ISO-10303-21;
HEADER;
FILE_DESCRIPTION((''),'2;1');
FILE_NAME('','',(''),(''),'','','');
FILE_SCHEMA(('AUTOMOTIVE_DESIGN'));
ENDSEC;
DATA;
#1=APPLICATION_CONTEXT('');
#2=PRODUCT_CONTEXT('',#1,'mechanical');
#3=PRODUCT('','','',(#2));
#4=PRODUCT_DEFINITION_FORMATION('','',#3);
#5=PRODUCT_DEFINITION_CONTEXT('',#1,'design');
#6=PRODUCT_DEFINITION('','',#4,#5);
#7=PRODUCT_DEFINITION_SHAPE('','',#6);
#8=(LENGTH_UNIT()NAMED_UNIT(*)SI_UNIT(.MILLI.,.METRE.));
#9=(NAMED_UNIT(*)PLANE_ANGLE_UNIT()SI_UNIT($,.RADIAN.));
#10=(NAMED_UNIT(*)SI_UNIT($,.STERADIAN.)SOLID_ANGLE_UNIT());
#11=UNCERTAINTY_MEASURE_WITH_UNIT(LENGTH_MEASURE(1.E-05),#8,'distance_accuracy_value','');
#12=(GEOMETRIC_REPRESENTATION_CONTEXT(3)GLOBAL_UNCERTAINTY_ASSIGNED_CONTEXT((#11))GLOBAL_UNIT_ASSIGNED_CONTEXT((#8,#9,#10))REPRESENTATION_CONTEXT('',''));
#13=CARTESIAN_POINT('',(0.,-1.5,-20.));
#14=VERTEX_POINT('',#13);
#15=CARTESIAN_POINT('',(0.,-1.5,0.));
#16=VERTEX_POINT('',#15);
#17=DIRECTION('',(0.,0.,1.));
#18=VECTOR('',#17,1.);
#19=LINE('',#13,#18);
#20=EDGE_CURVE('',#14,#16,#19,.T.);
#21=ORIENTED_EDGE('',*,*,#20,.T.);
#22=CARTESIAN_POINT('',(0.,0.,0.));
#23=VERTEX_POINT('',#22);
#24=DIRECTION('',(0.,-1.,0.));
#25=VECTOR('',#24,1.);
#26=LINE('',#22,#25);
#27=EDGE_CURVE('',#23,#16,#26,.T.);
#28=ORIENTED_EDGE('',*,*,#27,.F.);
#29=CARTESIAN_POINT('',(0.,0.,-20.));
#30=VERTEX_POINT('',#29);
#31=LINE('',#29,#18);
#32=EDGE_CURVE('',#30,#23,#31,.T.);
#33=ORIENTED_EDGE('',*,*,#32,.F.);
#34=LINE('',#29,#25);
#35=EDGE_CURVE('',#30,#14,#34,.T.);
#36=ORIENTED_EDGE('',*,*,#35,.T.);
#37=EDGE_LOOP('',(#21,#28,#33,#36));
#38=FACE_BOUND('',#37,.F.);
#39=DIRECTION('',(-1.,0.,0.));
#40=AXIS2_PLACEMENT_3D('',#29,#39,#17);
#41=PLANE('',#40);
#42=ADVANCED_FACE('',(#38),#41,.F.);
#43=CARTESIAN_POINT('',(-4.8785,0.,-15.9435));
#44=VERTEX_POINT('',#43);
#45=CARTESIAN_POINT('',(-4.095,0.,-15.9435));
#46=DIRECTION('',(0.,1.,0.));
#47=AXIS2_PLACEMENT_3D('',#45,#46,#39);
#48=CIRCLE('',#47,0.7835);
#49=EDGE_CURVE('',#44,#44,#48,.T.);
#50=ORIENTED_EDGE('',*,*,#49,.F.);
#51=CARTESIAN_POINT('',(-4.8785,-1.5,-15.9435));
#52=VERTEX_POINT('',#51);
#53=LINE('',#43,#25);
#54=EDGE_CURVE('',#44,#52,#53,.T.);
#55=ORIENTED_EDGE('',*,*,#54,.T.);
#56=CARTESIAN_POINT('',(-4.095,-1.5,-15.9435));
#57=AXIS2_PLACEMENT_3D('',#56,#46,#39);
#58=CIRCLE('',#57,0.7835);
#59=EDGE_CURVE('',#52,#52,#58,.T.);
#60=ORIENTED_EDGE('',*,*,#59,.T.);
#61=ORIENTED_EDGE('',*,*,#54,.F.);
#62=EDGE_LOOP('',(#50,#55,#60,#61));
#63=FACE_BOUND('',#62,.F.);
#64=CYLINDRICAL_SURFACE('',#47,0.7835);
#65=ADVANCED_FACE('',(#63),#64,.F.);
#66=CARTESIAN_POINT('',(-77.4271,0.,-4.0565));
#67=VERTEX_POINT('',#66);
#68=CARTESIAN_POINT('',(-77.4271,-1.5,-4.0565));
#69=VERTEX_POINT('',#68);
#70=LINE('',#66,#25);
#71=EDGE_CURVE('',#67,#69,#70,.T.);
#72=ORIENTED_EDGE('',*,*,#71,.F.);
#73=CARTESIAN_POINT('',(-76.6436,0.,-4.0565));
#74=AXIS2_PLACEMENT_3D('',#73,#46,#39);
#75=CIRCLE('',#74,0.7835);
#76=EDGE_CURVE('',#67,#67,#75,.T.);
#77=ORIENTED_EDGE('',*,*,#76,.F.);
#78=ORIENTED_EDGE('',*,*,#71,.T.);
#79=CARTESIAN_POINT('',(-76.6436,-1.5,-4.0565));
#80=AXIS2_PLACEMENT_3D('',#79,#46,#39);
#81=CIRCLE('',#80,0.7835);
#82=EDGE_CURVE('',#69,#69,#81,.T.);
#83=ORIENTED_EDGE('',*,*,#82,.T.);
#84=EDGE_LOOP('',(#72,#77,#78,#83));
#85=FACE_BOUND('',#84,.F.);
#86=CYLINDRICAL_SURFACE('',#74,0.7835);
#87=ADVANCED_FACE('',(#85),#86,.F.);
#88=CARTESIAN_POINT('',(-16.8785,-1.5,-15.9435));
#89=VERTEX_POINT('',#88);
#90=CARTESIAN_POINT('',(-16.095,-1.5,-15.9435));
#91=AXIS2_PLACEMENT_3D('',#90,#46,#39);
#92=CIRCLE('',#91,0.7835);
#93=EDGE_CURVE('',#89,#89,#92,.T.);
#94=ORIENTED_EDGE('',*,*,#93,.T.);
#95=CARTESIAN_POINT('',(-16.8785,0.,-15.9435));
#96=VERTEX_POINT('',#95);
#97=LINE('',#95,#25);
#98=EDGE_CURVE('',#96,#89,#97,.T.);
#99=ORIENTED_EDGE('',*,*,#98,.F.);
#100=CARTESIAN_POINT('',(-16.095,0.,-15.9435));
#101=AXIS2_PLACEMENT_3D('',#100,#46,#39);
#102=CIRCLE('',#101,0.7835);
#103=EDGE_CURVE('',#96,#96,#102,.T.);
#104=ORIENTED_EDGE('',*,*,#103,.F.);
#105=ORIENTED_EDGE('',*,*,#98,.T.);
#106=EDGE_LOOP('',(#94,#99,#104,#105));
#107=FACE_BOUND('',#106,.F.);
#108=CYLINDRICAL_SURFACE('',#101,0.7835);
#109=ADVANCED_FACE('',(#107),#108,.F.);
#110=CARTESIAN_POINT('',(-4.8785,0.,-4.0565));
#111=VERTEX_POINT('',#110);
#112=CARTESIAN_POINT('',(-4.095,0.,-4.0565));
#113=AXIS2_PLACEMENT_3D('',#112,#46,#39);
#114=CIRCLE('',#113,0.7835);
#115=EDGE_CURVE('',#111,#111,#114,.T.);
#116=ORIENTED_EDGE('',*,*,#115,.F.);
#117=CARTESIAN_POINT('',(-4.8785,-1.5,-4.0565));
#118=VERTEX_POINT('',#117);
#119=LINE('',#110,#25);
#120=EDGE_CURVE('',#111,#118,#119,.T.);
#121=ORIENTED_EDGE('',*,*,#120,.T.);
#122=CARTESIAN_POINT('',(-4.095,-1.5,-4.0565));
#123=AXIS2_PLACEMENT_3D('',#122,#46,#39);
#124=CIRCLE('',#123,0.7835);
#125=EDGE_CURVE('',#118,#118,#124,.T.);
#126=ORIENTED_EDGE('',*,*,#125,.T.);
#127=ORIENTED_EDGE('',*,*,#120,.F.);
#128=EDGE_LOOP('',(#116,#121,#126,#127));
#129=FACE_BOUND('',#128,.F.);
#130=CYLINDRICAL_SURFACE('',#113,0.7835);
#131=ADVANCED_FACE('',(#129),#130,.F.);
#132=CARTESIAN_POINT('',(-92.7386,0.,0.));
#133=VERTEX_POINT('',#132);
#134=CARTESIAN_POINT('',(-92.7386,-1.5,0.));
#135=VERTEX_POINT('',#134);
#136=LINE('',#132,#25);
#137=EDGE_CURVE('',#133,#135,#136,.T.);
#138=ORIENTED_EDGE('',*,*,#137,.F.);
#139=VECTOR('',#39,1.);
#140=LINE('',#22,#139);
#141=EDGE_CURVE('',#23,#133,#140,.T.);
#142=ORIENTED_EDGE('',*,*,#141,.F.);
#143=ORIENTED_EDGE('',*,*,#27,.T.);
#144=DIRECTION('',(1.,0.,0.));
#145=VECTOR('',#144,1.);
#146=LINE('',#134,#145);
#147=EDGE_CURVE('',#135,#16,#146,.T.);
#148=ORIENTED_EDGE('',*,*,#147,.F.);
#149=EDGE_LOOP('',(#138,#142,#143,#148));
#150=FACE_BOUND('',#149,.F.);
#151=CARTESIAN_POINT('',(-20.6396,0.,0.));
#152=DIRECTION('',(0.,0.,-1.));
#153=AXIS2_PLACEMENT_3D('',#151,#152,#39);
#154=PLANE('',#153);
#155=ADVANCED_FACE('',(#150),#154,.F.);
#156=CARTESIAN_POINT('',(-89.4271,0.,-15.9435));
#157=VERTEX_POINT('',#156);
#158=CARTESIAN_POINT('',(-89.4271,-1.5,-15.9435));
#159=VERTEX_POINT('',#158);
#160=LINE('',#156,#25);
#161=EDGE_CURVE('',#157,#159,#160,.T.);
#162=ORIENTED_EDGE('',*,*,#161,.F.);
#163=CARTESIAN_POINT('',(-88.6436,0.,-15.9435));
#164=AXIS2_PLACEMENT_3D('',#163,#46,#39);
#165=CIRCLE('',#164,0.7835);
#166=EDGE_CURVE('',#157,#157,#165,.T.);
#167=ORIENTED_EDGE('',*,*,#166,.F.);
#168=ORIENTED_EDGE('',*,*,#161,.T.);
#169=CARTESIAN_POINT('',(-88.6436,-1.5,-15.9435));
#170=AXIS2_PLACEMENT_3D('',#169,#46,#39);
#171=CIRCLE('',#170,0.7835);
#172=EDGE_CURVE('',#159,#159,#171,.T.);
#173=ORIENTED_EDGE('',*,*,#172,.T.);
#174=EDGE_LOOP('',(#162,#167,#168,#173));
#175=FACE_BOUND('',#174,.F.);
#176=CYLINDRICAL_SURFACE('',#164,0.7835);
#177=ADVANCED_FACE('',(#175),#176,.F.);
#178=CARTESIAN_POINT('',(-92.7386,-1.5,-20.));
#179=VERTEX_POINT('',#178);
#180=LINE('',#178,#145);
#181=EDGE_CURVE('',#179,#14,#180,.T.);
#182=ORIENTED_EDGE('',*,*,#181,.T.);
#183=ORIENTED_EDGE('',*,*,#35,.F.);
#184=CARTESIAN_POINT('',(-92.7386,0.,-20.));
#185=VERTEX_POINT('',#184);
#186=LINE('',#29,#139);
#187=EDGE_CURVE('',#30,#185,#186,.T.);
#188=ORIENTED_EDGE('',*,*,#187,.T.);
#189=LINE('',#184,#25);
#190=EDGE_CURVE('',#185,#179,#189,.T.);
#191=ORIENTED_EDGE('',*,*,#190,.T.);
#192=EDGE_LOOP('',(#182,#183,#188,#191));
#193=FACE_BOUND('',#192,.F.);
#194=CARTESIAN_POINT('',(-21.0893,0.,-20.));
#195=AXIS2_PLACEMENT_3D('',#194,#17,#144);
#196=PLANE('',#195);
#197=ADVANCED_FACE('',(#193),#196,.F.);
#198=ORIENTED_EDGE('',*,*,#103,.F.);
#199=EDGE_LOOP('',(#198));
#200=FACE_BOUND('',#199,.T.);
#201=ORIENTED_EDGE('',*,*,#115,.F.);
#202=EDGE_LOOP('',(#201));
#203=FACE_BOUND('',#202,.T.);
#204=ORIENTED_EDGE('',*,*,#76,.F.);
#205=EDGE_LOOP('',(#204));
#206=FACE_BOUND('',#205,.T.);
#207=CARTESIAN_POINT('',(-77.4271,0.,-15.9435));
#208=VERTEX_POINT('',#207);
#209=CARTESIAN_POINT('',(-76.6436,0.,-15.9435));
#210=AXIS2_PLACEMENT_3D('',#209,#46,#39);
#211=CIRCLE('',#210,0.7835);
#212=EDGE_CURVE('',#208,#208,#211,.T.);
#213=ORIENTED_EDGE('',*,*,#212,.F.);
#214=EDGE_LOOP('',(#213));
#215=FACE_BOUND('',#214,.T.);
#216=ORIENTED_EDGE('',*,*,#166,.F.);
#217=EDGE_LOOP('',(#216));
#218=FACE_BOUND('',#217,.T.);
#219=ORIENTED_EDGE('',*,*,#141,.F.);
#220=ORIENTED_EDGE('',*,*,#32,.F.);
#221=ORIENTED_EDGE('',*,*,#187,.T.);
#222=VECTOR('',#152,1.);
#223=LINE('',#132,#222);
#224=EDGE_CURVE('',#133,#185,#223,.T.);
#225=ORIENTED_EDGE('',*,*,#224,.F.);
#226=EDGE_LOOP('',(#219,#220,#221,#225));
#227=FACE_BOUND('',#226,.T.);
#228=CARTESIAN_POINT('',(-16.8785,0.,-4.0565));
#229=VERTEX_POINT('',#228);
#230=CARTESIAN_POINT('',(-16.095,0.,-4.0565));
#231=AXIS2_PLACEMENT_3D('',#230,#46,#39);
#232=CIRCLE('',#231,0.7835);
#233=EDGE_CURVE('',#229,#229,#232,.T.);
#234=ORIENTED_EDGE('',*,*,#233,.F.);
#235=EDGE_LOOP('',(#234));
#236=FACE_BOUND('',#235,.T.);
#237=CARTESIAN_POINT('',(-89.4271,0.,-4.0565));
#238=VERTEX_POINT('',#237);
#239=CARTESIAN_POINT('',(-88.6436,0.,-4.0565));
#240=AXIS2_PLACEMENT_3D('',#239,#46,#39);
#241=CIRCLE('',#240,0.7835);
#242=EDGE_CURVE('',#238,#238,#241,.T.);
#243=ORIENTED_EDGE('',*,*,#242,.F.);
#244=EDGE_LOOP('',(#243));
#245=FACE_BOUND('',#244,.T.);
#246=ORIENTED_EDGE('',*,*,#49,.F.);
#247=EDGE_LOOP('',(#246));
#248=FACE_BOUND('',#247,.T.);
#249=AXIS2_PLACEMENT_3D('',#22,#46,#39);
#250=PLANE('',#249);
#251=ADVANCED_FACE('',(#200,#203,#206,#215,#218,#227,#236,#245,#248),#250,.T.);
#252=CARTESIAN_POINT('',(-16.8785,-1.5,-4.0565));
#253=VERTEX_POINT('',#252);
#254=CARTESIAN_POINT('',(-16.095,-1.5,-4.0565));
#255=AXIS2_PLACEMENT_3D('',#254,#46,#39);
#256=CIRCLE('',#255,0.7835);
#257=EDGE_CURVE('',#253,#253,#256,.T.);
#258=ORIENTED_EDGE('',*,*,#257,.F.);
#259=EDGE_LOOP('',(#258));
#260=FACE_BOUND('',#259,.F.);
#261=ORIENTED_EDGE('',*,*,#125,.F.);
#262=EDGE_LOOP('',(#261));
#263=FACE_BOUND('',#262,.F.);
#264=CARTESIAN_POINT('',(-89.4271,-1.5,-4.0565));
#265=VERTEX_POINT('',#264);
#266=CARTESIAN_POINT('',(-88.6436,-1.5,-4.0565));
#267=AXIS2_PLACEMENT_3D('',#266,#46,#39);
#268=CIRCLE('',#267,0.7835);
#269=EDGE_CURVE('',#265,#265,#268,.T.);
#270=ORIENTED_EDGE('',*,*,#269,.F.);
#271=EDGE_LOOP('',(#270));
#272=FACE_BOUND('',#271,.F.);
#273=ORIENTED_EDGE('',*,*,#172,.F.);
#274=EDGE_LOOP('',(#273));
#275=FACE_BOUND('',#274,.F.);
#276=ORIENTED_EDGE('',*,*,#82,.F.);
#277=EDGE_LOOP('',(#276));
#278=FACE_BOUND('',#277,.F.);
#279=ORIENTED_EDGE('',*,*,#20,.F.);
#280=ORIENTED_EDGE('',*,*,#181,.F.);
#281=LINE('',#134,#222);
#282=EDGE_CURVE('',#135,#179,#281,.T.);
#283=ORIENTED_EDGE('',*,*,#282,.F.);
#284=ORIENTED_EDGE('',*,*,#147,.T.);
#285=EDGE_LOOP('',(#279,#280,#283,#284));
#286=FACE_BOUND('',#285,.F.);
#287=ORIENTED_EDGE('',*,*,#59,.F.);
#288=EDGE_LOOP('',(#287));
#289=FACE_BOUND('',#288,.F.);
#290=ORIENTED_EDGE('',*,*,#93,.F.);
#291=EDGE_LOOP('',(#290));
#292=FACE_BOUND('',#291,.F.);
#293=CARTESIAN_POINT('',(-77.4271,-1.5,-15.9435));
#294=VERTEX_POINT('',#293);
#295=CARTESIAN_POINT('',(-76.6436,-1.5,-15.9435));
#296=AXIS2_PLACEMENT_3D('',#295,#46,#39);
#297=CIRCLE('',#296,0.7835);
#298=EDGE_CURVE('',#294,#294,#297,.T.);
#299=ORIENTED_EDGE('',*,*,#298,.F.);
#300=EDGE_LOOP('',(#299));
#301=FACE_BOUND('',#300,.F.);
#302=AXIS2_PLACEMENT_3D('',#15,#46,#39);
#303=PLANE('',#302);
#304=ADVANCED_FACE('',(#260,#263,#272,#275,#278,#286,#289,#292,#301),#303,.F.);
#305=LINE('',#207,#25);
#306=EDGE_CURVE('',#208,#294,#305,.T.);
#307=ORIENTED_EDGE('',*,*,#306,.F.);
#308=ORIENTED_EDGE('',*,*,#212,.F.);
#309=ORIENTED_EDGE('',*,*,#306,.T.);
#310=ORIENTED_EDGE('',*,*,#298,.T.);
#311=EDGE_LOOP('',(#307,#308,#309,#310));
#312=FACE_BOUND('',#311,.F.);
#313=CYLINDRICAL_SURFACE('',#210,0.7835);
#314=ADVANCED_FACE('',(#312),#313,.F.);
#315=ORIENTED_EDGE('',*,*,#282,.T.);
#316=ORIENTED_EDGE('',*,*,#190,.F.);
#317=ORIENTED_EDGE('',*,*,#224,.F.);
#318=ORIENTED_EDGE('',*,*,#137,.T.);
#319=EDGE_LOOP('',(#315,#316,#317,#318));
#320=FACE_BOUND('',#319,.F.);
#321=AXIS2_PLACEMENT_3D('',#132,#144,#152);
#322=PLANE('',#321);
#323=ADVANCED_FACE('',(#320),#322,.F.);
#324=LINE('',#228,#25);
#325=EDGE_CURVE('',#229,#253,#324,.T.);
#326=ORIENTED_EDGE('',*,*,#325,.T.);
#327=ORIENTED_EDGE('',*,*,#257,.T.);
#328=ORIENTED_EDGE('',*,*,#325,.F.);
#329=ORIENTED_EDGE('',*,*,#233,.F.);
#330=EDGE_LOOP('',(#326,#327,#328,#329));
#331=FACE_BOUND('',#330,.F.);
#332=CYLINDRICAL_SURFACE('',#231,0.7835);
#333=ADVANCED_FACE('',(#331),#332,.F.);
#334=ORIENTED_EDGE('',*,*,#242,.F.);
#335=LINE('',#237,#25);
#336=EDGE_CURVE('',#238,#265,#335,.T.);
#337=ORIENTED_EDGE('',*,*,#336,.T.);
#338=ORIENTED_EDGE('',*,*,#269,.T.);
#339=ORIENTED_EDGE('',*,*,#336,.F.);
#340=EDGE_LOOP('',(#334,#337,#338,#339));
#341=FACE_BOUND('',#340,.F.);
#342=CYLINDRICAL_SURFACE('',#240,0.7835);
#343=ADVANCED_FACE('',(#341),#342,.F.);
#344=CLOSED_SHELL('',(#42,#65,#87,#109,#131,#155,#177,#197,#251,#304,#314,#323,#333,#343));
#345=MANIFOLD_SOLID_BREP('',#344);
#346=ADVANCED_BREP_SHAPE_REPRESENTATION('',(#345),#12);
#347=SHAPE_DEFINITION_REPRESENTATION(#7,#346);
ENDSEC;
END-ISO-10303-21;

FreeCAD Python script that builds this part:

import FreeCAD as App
import Part
import Sketcher
from FreeCAD import Vector
Q = App.Units.Quantity


def add_polygon(sketch, points):
    """Adds a closed chain of lines whose ends are joined by coincident constraints."""
    first, n = sketch.GeometryCount, len(points)
    for a, b in zip(points, points[1:] + points[:1]):
        sketch.addGeometry(Part.LineSegment(App.Vector(*a, 0), App.Vector(*b, 0)), False)
    for i in range(n):
        sketch.addConstraint(Sketcher.Constraint("Coincident", first + i, 2, first + (i + 1) % n, 1))

doc = App.newDocument("Part")
body = doc.addObject("PartDesign::Body", "Body")

sketch1 = body.newObject("Sketcher::SketchObject", "Sketch")
sketch1.AttachmentSupport = (doc.getObject("XZ_Plane"), [""])
sketch1.MapMode = "FlatFace"
add_polygon(sketch1, [(0, 0), (0, -20), (-92.7386, -20), (-92.7386, 0)])
sketch1.addGeometry(Part.Circle(Vector(-16.095, -4.0565, 0), Vector(0, 0, 1), 0.7835), False)
sketch1.addGeometry(Part.Circle(Vector(-4.095, -15.9435, 0), Vector(0, 0, 1), 0.7835), False)
sketch1.addGeometry(Part.Circle(Vector(-16.095, -15.9435, 0), Vector(0, 0, 1), 0.7835), False)
sketch1.addGeometry(Part.Circle(Vector(-4.095, -4.0565, 0), Vector(0, 0, 1), 0.7835), False)
sketch1.addGeometry(Part.Circle(Vector(-88.6436, -4.0565, 0), Vector(0, 0, 1), 0.7835), False)
sketch1.addGeometry(Part.Circle(Vector(-76.6436, -15.9435, 0), Vector(0, 0, 1), 0.7835), False)
sketch1.addGeometry(Part.Circle(Vector(-88.6436, -15.9435, 0), Vector(0, 0, 1), 0.7835), False)
sketch1.addGeometry(Part.Circle(Vector(-76.6436, -4.0565, 0), Vector(0, 0, 1), 0.7835), False)
sketch1.addConstraint(Sketcher.Constraint("Vertical", 0))
sketch1.addConstraint(Sketcher.Constraint("Horizontal", 1))
sketch1.addConstraint(Sketcher.Constraint("Vertical", 2))
sketch1.addConstraint(Sketcher.Constraint("Horizontal", 3))
sketch1.addConstraint(Sketcher.Constraint("Coincident", 3, 2, -1, 1))
sketch1.addConstraint(Sketcher.Constraint("Equal", 4, 5))
sketch1.addConstraint(Sketcher.Constraint("Equal", 5, 6))
sketch1.addConstraint(Sketcher.Constraint("Equal", 6, 7))
sketch1.addConstraint(Sketcher.Constraint("Equal", 7, 8))
sketch1.addConstraint(Sketcher.Constraint("Equal", 8, 9))
sketch1.addConstraint(Sketcher.Constraint("Equal", 9, 10))
sketch1.addConstraint(Sketcher.Constraint("Equal", 10, 11))
sketch1.addConstraint(Sketcher.Constraint("Horizontal", 5, 3, 6, 3))
sketch1.addConstraint(Sketcher.Constraint("Horizontal", 4, 3, 7, 3))
sketch1.addConstraint(Sketcher.Constraint("Horizontal", 7, 3, 8, 3))
sketch1.addConstraint(Sketcher.Constraint("Horizontal", 6, 3, 9, 3))
sketch1.addConstraint(Sketcher.Constraint("Horizontal", 9, 3, 10, 3))
sketch1.addConstraint(Sketcher.Constraint("Horizontal", 8, 3, 11, 3))
sketch1.addConstraint(Sketcher.Constraint("Vertical", 4, 3, 6, 3))
sketch1.addConstraint(Sketcher.Constraint("Vertical", 5, 3, 7, 3))
sketch1.addConstraint(Sketcher.Constraint("Vertical", 8, 3, 10, 3))
sketch1.addConstraint(Sketcher.Constraint("Vertical", 9, 3, 11, 3))
sketch1.addConstraint(Sketcher.Constraint("DistanceY", 0, 2, 0, 1, Q("20 mm")))
sketch1.addConstraint(Sketcher.Constraint("Diameter", 4, Q("1.567 mm")))
sketch1.addConstraint(Sketcher.Constraint("DistanceX", 4, 3, 5, 3, Q("12 mm")))
sketch1.addConstraint(Sketcher.Constraint("DistanceX", 8, 3, 9, 3, Q("12 mm")))
sketch1.addConstraint(Sketcher.Constraint("DistanceX", 1, 2, 1, 1, Q("92.7386 mm")))
sketch1.addConstraint(Sketcher.Constraint("DistanceX", 4, 3, -1, 1, Q("16.095 mm")))
sketch1.addConstraint(Sketcher.Constraint("DistanceY", 5, 3, 4, 3, Q("11.887 mm")))
sketch1.addConstraint(Sketcher.Constraint("DistanceX", 1, 2, 10, 3, Q("4.095 mm")))
sketch1.addConstraint(Sketcher.Constraint("DistanceY", 4, 3, -1, 1, Q("4.0565 mm")))
pad1 = body.newObject("PartDesign::Pad", "Pad")
pad1.Profile = sketch1
pad1.Length = 1.5

doc.recompute()
